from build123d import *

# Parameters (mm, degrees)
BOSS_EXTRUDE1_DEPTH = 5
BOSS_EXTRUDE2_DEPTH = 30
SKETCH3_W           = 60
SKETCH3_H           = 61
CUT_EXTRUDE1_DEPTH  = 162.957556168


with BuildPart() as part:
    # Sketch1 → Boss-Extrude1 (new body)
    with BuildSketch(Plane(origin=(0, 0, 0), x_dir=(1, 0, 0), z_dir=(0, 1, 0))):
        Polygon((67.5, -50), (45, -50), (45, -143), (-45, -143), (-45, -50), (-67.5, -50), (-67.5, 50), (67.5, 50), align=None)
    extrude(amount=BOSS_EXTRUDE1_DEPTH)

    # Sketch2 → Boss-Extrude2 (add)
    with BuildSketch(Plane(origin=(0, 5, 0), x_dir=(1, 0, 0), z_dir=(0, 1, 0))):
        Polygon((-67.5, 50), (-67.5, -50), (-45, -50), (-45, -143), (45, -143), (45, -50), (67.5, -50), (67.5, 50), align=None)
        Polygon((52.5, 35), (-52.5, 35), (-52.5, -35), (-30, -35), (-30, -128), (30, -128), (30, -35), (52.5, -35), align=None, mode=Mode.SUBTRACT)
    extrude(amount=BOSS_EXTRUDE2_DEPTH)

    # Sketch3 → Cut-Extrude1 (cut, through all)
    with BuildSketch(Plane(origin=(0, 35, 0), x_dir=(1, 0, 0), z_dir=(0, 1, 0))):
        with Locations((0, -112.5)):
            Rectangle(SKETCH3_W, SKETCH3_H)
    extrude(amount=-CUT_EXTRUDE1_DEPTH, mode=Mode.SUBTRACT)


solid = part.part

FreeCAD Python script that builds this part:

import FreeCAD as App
import Part
import Sketcher

V = App.Vector


def add_polygon(sketch, points):
    """Adds a closed chain of lines whose ends are joined by coincident constraints."""
    first, n = sketch.GeometryCount, len(points)
    for a, b in zip(points, points[1:] + points[:1]):
        sketch.addGeometry(Part.LineSegment(App.Vector(*a, 0), App.Vector(*b, 0)), False)
    for i in range(n):
        sketch.addConstraint(Sketcher.Constraint("Coincident", first + i, 2, first + (i + 1) % n, 1))

doc = App.newDocument("Part")
body = doc.addObject("PartDesign::Body", "Body")

sketch1 = body.newObject("Sketcher::SketchObject", "Sketch")
sketch1.AttachmentSupport = (doc.getObject("XZ_Plane"), [""])
sketch1.MapMode = "FlatFace"
add_polygon(sketch1, [(45, 50), (68, 50), (68, -50), (-68, -50), (-68, 50), (-45, 50), (-45, 143), (45, 143)])
sketch1.addConstraint([
    Sketcher.Constraint("Horizontal", 0),
    Sketcher.Constraint("Vertical", 1),
    Sketcher.Constraint("Horizontal", 2),
    Sketcher.Constraint("Vertical", 3),
    Sketcher.Constraint("Horizontal", 4),
    Sketcher.Constraint("Vertical", 5),
    Sketcher.Constraint("Horizontal", 6),
    Sketcher.Constraint("Vertical", 7),
    Sketcher.Constraint("Symmetric", 0, 2, 2, 2, -1, 1),
    Sketcher.Constraint("Symmetric", 4, 2, 7, 2, -2),
    Sketcher.Constraint("DistanceX", 2, 2, 2, 1, 135.0),
    Sketcher.Constraint("DistanceX", 6, 1, 6, 2, 90.0),
    Sketcher.Constraint("DistanceY", 1, 2, 1, 1, 100.0),
    Sketcher.Constraint("DistanceY", 5, 1, 5, 2, 93.0),
])
pad1 = body.newObject("PartDesign::Pad", "Pad")
pad1.Profile = sketch1
pad1.Length = 5
pad1.Reversed = True

sketch2 = body.newObject("Sketcher::SketchObject", "Sketch001")
sketch2.AttachmentSupport = (doc.getObject("XZ_Plane"), [""])
sketch2.MapMode = "FlatFace"
sketch2.AttachmentOffset = App.Placement(V(0, 0, -5), App.Rotation())
add_polygon(sketch2, [(-68, -50), (-68, 50), (-45, 50), (-45, 143), (45, 143), (45, 50), (68, 50), (68, -50)])
add_polygon(sketch2, [(-52, -35), (52, -35), (52, 35), (30, 35), (30, 128), (-30, 128), (-30, 35), (-52, 35)])
sketch2.addConstraint([
    Sketcher.Constraint("Vertical", 0),
    Sketcher.Constraint("Horizontal", 1),
    Sketcher.Constraint("Vertical", 2),
    Sketcher.Constraint("Horizontal", 3),
    Sketcher.Constraint("Vertical", 4),
    Sketcher.Constraint("Horizontal", 5),
    Sketcher.Constraint("Vertical", 6),
    Sketcher.Constraint("Horizontal", 7),
    Sketcher.Constraint("Horizontal", 8),
    Sketcher.Constraint("Vertical", 9),
    Sketcher.Constraint("Horizontal", 10),
    Sketcher.Constraint("Vertical", 11),
    Sketcher.Constraint("Horizontal", 12),
    Sketcher.Constraint("Vertical", 13),
    Sketcher.Constraint("Horizontal", 14),
    Sketcher.Constraint("Vertical", 15),
    Sketcher.Constraint("Symmetric", 0, 2, 6, 2, -1, 1),
    Sketcher.Constraint("Symmetric", 8, 2, 14, 2, -1, 1),
    Sketcher.Constraint("Symmetric", 1, 2, 4, 2, -2),
    Sketcher.Constraint("Symmetric", 10, 2, 13, 2, -2),
    Sketcher.Constraint("Equal", 5, 10),
    Sketcher.Constraint("Equal", 4, 11),
    Sketcher.Constraint("DistanceX", 3, 1, 3, 2, 90.0),
    Sketcher.Constraint("DistanceX", 7, 2, 7, 1, 135.0),
    Sketcher.Constraint("DistanceX", 8, 1, 8, 2, 105.0),
    Sketcher.Constraint("DistanceY", 0, 1, 0, 2, 100.0),
    Sketcher.Constraint("DistanceY", 2, 1, 2, 2, 93.0),
    Sketcher.Constraint("DistanceY", 9, 1, 9, 2, 70.0),
])
pad2 = body.newObject("PartDesign::Pad", "Pad001")
pad2.Profile = sketch2
pad2.Length = 30
pad2.Reversed = True

sketch3 = body.newObject("Sketcher::SketchObject", "Sketch002")
sketch3.AttachmentSupport = (doc.getObject("XZ_Plane"), [""])
sketch3.MapMode = "FlatFace"
sketch3.AttachmentOffset = App.Placement(V(0, 0, -35), App.Rotation())
add_polygon(sketch3, [(-30, 82), (-30, 143), (30, 143), (30, 82)])
sketch3.addConstraint([
    Sketcher.Constraint("Vertical", 0),
    Sketcher.Constraint("Horizontal", 1),
    Sketcher.Constraint("Vertical", 2),
    Sketcher.Constraint("Horizontal", 3),
    Sketcher.Constraint("DistanceX", 1, 1, 1, 2, 60.0),
    Sketcher.Constraint("DistanceY", 0, 1, 0, 2, 61.0),
    Sketcher.Constraint("DistanceX", 0, 2, -1, 1, 30.0),
    Sketcher.Constraint("DistanceY", -1, 1, 0, 2, 143.0),
])
pocket1 = body.newObject("PartDesign::Pocket", "Pocket")
pocket1.Profile = sketch3
pocket1.Type = "ThroughAll"
pocket1.Reversed = True

doc.recompute()
